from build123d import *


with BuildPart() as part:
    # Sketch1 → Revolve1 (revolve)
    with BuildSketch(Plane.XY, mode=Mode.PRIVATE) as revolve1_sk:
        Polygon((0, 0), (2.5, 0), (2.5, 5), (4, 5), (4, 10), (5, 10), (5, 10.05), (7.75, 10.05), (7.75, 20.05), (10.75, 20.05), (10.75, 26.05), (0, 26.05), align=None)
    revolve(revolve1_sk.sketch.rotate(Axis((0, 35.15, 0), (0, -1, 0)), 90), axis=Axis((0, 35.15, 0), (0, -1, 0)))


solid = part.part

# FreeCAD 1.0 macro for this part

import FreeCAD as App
import Part
import Sketcher

V = App.Vector

doc = App.newDocument("Part")
body = doc.addObject("PartDesign::Body", "Body")

sketch1 = doc.addObject("Sketcher::SketchObject", "Sketch")
body.addObject(sketch1)
sketch1.AttachmentSupport = (doc.XY_Plane, [""])
sketch1.MapMode = "FlatFace"
sketch1.addGeometry(Part.LineSegment(V(0, 0, 0), V(2.5, 0, 0)), False)
sketch1.addGeometry(Part.LineSegment(V(2.5, 0, 0), V(2.5, 5, 0)), False)
sketch1.addGeometry(Part.LineSegment(V(2.5, 5, 0), V(4, 5, 0)), False)
sketch1.addGeometry(Part.LineSegment(V(4, 5, 0), V(4, 10, 0)), False)
sketch1.addGeometry(Part.LineSegment(V(4, 10, 0), V(5, 10, 0)), False)
sketch1.addGeometry(Part.LineSegment(V(5, 10, 0), V(5, 10.05, 0)), False)
sketch1.addGeometry(Part.LineSegment(V(5, 10.05, 0), V(7.75, 10.05, 0)), False)
sketch1.addGeometry(Part.LineSegment(V(7.75, 10.05, 0), V(7.75, 20.05, 0)), False)
sketch1.addGeometry(Part.LineSegment(V(7.75, 20.05, 0), V(10.75, 20.05, 0)), False)
sketch1.addGeometry(Part.LineSegment(V(10.75, 20.05, 0), V(10.75, 26.05, 0)), False)
sketch1.addGeometry(Part.LineSegment(V(10.75, 26.05, 0), V(0, 26.05, 0)), False)
sketch1.addGeometry(Part.LineSegment(V(0, 26.05, 0), V(0, 0, 0)), False)
sketch1.addConstraint(Sketcher.Constraint("Coincident", 0, 2, 1, 1))
sketch1.addConstraint(Sketcher.Constraint("Coincident", 1, 2, 2, 1))
sketch1.addConstraint(Sketcher.Constraint("Coincident", 2, 2, 3, 1))
sketch1.addConstraint(Sketcher.Constraint("Coincident", 3, 2, 4, 1))
sketch1.addConstraint(Sketcher.Constraint("Coincident", 4, 2, 5, 1))
sketch1.addConstraint(Sketcher.Constraint("Coincident", 5, 2, 6, 1))
sketch1.addConstraint(Sketcher.Constraint("Coincident", 6, 2, 7, 1))
sketch1.addConstraint(Sketcher.Constraint("Coincident", 7, 2, 8, 1))
sketch1.addConstraint(Sketcher.Constraint("Coincident", 8, 2, 9, 1))
sketch1.addConstraint(Sketcher.Constraint("Coincident", 9, 2, 10, 1))
sketch1.addConstraint(Sketcher.Constraint("Coincident", 10, 2, 11, 1))
sketch1.addConstraint(Sketcher.Constraint("Coincident", 11, 2, 0, 1))
sketch1.addConstraint(Sketcher.Constraint("Horizontal", 0))
sketch1.addConstraint(Sketcher.Constraint("Vertical", 1))
sketch1.addConstraint(Sketcher.Constraint("Horizontal", 2))
sketch1.addConstraint(Sketcher.Constraint("Vertical", 3))
sketch1.addConstraint(Sketcher.Constraint("Horizontal", 4))
sketch1.addConstraint(Sketcher.Constraint("Vertical", 5))
sketch1.addConstraint(Sketcher.Constraint("Horizontal", 6))
sketch1.addConstraint(Sketcher.Constraint("Vertical", 7))
sketch1.addConstraint(Sketcher.Constraint("Horizontal", 8))
sketch1.addConstraint(Sketcher.Constraint("Vertical", 9))
sketch1.addConstraint(Sketcher.Constraint("Horizontal", 10))
sketch1.addConstraint(Sketcher.Constraint("Vertical", 11))
sketch1.addConstraint(Sketcher.Constraint("Coincident", 11, 2, -1, 1))
sketch1.addConstraint(Sketcher.Constraint("Equal", 1, 3))
sketch1.addConstraint(Sketcher.Constraint("DistanceX", 4, 1, 4, 2, 1.0))
sketch1.addConstraint(Sketcher.Constraint("DistanceX", 8, 1, 8, 2, 3.0))
sketch1.addConstraint(Sketcher.Constraint("DistanceY", 1, 1, 1, 2, 5.0))
sketch1.addConstraint(Sketcher.Constraint("DistanceY", 7, 1, 7, 2, 10.0))
sketch1.addConstraint(Sketcher.Constraint("DistanceY", 9, 1, 9, 2, 6.0))
sketch1.addConstraint(Sketcher.Constraint("DistanceX", 0, 1, 0, 2, 2.5))
sketch1.addConstraint(Sketcher.Constraint("DistanceX", 2, 1, 2, 2, 1.5))
sketch1.addConstraint(Sketcher.Constraint("DistanceX", 6, 1, 6, 2, 2.75))
sketch1.addConstraint(Sketcher.Constraint("DistanceY", 5, 1, 5, 2, 0.05))
revolution = doc.addObject("PartDesign::Revolution", "Revolution")
body.addObject(revolution)
revolution.Profile = sketch1
revolution.ReferenceAxis = (sketch1, ["V_Axis"])
revolution.Angle = 360

doc.recompute()
